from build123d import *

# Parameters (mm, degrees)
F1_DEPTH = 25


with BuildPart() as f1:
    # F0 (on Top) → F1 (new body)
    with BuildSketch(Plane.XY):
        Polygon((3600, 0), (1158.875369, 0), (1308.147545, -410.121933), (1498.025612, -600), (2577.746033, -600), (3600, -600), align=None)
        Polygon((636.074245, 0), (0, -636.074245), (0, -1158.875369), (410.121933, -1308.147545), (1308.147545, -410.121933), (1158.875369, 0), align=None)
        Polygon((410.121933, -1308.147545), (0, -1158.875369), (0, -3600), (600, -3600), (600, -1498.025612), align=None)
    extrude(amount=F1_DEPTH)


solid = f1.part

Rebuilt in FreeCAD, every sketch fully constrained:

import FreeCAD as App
import Part
import Sketcher
from FreeCAD import Vector
Q = App.Units.Quantity

doc = App.newDocument("Part")
params = doc.addObject("Spreadsheet::Sheet", "Params")
for row, (alias, value) in enumerate([
    ("sketch1_width", "600 mm"),
    ("sketch1_length", "1270 mm"),
    ("pad1_length", "25 mm"),
], start=1):
    params.set(f"A{row}", alias)
    params.set(f"B{row}", "=" + value)
    params.setAlias(f"B{row}", alias)

body = doc.addObject("PartDesign::Body", "Body")

# Sketch on XY plane
sketch1 = doc.addObject("Sketcher::SketchObject", "Sketch")
body.addObject(sketch1)
sketch1.AttachmentSupport = (doc.XY_Plane, [""])
sketch1.MapMode = "FlatFace"
sketch1.addGeometry([
    Part.LineSegment(Vector(3600, 0, 0), Vector(636, 0, 0)),  # 0
    Part.LineSegment(Vector(636, 0, 0), Vector(0, -636, 0)),  # 1
    Part.LineSegment(Vector(0, -636, 0), Vector(0, -3600, 0)),  # 2
    Part.LineSegment(Vector(0, -3600, 0), Vector(600, -3600, 0)),  # 3
    Part.LineSegment(Vector(600, -3600, 0), Vector(600, -1498, 0)),  # 4
    Part.LineSegment(Vector(600, -1498, 0), Vector(410, -1308, 0)),  # 5
    Part.LineSegment(Vector(410, -1308, 0), Vector(1308, -410, 0)),  # 6
    Part.LineSegment(Vector(1308, -410, 0), Vector(1498, -600, 0)),  # 7
    Part.LineSegment(Vector(1498, -600, 0), Vector(3600, -600, 0)),  # 8
    Part.LineSegment(Vector(3600, -600, 0), Vector(3600, 0, 0)),  # 9
], False)
sketch1.addConstraint([
    Sketcher.Constraint("Coincident", 0, 2, 1, 1),
    Sketcher.Constraint("Coincident", 1, 2, 2, 1),
    Sketcher.Constraint("Coincident", 2, 2, 3, 1),
    Sketcher.Constraint("Coincident", 3, 2, 4, 1),
    Sketcher.Constraint("Coincident", 4, 2, 5, 1),
    Sketcher.Constraint("Coincident", 5, 2, 6, 1),
    Sketcher.Constraint("Coincident", 6, 2, 7, 1),
    Sketcher.Constraint("Coincident", 7, 2, 8, 1),
    Sketcher.Constraint("Coincident", 8, 2, 9, 1),
    Sketcher.Constraint("Coincident", 9, 2, 0, 1),
    Sketcher.Constraint("Horizontal", 0),
    Sketcher.Constraint("Vertical", 2),
    Sketcher.Constraint("Horizontal", 3),
    Sketcher.Constraint("Vertical", 4),
    Sketcher.Constraint("Horizontal", 8),
    Sketcher.Constraint("Vertical", 9),
    Sketcher.Constraint("PointOnObject", 0, 2, -1),
    Sketcher.Constraint("PointOnObject", 1, 2, -2),
    Sketcher.Constraint("Perpendicular", 1, 5),
    Sketcher.Constraint("Perpendicular", 5, 6),
    Sketcher.Constraint("Perpendicular", 6, 7),
    Sketcher.Constraint("Equal", 0, 2),
    Sketcher.Constraint("Equal", 8, 4),
    Sketcher.Constraint("Equal", 3, 9),
    Sketcher.Constraint("Equal", 5, 7),
    Sketcher.Constraint("DistanceX", 3, 1, 3, 2, Q("600 mm")),
    Sketcher.Constraint("Distance", 6, Q("1270 mm")),
    Sketcher.Constraint("DistanceY", 2, 2, -1, 1, Q("3600 mm")),
    Sketcher.Constraint("DistanceY", 5, 2, 1, 2, Q("672.0733 mm")),
    Sketcher.Constraint("DistanceX", 0, 2, 0, 1, Q("2963.925755 mm")),
])
sketch1.setExpression("Constraints[25]", "Params.sketch1_width")
sketch1.setExpression("Constraints[26]", "Params.sketch1_length")
pad1 = doc.addObject("PartDesign::Pad", "Pad")
body.addObject(pad1)
pad1.Profile = sketch1
pad1.setExpression("Length", "Params.pad1_length")

doc.recompute()
